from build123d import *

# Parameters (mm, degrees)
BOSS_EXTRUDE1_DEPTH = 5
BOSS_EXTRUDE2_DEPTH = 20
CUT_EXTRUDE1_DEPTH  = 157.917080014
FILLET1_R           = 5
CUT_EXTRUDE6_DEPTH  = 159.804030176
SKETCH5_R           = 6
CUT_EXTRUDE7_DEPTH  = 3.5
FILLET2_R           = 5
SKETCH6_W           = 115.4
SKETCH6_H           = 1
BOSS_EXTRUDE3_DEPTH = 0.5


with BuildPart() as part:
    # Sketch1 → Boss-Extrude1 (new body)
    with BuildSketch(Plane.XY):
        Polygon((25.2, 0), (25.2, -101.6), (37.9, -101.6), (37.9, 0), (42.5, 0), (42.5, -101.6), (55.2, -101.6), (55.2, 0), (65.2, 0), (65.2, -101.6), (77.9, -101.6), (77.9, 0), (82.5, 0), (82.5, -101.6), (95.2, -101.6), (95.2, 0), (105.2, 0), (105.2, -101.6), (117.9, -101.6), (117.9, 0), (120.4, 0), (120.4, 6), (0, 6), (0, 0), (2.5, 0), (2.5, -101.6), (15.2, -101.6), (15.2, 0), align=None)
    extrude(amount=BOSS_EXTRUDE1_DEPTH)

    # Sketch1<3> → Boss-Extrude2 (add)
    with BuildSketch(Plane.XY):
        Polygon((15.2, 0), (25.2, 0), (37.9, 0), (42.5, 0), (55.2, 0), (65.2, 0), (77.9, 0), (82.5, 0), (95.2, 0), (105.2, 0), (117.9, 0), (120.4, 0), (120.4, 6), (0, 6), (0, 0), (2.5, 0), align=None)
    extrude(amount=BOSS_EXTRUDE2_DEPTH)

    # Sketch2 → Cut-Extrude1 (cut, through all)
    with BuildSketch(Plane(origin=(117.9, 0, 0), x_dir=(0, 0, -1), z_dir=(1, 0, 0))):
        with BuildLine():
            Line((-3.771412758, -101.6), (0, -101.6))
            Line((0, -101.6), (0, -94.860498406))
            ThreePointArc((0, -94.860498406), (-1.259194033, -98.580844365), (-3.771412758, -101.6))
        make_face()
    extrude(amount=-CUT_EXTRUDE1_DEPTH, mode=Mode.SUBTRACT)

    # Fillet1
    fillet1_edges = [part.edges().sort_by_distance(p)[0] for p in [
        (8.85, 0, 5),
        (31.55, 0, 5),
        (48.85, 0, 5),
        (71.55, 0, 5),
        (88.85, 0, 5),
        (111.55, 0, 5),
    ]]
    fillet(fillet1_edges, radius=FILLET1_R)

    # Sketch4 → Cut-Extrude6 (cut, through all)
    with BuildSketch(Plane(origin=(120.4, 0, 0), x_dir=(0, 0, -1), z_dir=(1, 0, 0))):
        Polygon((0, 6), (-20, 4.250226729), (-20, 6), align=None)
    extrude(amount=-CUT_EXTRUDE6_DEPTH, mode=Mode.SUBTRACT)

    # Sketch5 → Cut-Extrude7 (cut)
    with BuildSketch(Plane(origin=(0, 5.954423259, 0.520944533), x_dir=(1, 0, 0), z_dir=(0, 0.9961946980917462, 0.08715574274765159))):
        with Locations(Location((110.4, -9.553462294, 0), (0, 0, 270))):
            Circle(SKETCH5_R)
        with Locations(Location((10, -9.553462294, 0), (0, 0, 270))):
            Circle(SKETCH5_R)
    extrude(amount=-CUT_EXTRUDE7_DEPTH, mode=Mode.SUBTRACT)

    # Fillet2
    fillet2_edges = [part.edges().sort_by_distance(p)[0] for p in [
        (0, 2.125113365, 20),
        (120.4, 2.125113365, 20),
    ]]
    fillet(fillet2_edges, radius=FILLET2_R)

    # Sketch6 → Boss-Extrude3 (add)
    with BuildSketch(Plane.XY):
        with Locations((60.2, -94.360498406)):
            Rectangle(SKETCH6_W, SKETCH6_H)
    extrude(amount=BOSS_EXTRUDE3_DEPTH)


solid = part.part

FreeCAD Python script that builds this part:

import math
import FreeCAD as App
import Part
import Sketcher

V = App.Vector
Q = App.Units.Quantity


def edges_at(feature, points):
    """Names of the edges that pass closest to the given points."""
    edges = feature.Shape.Edges
    near = lambda p: min(range(len(edges)), key=lambda i: edges[i].distToShape(Part.Vertex(*p))[0])
    return sorted({f"Edge{near(p) + 1}" for p in points})

doc = App.newDocument("Part")
body = doc.addObject("PartDesign::Body", "Body")

sketch1 = body.newObject("Sketcher::SketchObject", "Sketch")
sketch1.AttachmentSupport = (doc.getObject("XY_Plane"), [""])
sketch1.MapMode = "FlatFace"
sketch1.addGeometry([
    Part.LineSegment(V(25.2, 0, 0), V(25.2, -101.6, 0)),
    Part.LineSegment(V(25.2, -101.6, 0), V(37.9, -101.6, 0)),
    Part.LineSegment(V(37.9, -101.6, 0), V(37.9, 0, 0)),
    Part.LineSegment(V(37.9, 0, 0), V(42.5, 0, 0)),
    Part.LineSegment(V(42.5, 0, 0), V(42.5, -101.6, 0)),
    Part.LineSegment(V(42.5, -101.6, 0), V(55.2, -101.6, 0)),
    Part.LineSegment(V(55.2, -101.6, 0), V(55.2, 0, 0)),
    Part.LineSegment(V(55.2, 0, 0), V(65.2, 0, 0)),
    Part.LineSegment(V(65.2, 0, 0), V(65.2, -101.6, 0)),
    Part.LineSegment(V(65.2, -101.6, 0), V(77.9, -101.6, 0)),
    Part.LineSegment(V(77.9, -101.6, 0), V(77.9, 0, 0)),
    Part.LineSegment(V(77.9, 0, 0), V(82.5, 0, 0)),
    Part.LineSegment(V(82.5, 0, 0), V(82.5, -101.6, 0)),
    Part.LineSegment(V(82.5, -101.6, 0), V(95.2, -101.6, 0)),
    Part.LineSegment(V(95.2, -101.6, 0), V(95.2, 0, 0)),
    Part.LineSegment(V(95.2, 0, 0), V(105.2, 0, 0)),
    Part.LineSegment(V(105.2, 0, 0), V(105.2, -101.6, 0)),
    Part.LineSegment(V(105.2, -101.6, 0), V(117.9, -101.6, 0)),
    Part.LineSegment(V(117.9, -101.6, 0), V(117.9, 0, 0)),
    Part.LineSegment(V(117.9, 0, 0), V(120.4, 0, 0)),
    Part.LineSegment(V(120.4, 0, 0), V(120.4, 6, 0)),
    Part.LineSegment(V(120.4, 6, 0), V(0, 6, 0)),
    Part.LineSegment(V(0, 6, 0), V(0, 0, 0)),
    Part.LineSegment(V(0, 0, 0), V(2.5, 0, 0)),
    Part.LineSegment(V(2.5, 0, 0), V(2.5, -101.6, 0)),
    Part.LineSegment(V(2.5, -101.6, 0), V(15.2, -101.6, 0)),
    Part.LineSegment(V(15.2, -101.6, 0), V(15.2, 0, 0)),
    Part.LineSegment(V(15.2, 0, 0), V(25.2, 0, 0)),
], False)
sketch1.addConstraint([
    Sketcher.Constraint("Coincident", 0, 2, 1, 1),
    Sketcher.Constraint("Coincident", 1, 2, 2, 1),
    Sketcher.Constraint("Coincident", 2, 2, 3, 1),
    Sketcher.Constraint("Coincident", 3, 2, 4, 1),
    Sketcher.Constraint("Coincident", 4, 2, 5, 1),
    Sketcher.Constraint("Coincident", 5, 2, 6, 1),
    Sketcher.Constraint("Coincident", 6, 2, 7, 1),
    Sketcher.Constraint("Coincident", 7, 2, 8, 1),
    Sketcher.Constraint("Coincident", 8, 2, 9, 1),
    Sketcher.Constraint("Coincident", 9, 2, 10, 1),
    Sketcher.Constraint("Coincident", 10, 2, 11, 1),
    Sketcher.Constraint("Coincident", 11, 2, 12, 1),
    Sketcher.Constraint("Coincident", 12, 2, 13, 1),
    Sketcher.Constraint("Coincident", 13, 2, 14, 1),
    Sketcher.Constraint("Coincident", 14, 2, 15, 1),
    Sketcher.Constraint("Coincident", 15, 2, 16, 1),
    Sketcher.Constraint("Coincident", 16, 2, 17, 1),
    Sketcher.Constraint("Coincident", 17, 2, 18, 1),
    Sketcher.Constraint("Coincident", 18, 2, 19, 1),
    Sketcher.Constraint("Coincident", 19, 2, 20, 1),
    Sketcher.Constraint("Coincident", 20, 2, 21, 1),
    Sketcher.Constraint("Coincident", 21, 2, 22, 1),
    Sketcher.Constraint("Coincident", 22, 2, 23, 1),
    Sketcher.Constraint("Coincident", 23, 2, 24, 1),
    Sketcher.Constraint("Coincident", 24, 2, 25, 1),
    Sketcher.Constraint("Coincident", 25, 2, 26, 1),
    Sketcher.Constraint("Coincident", 26, 2, 27, 1),
    Sketcher.Constraint("Coincident", 27, 2, 0, 1),
    Sketcher.Constraint("Vertical", 0),
    Sketcher.Constraint("Horizontal", 1),
    Sketcher.Constraint("Vertical", 2),
    Sketcher.Constraint("Horizontal", 3),
    Sketcher.Constraint("Vertical", 4),
    Sketcher.Constraint("Horizontal", 5),
    Sketcher.Constraint("Vertical", 6),
    Sketcher.Constraint("Horizontal", 7),
    Sketcher.Constraint("Vertical", 8),
    Sketcher.Constraint("Horizontal", 9),
    Sketcher.Constraint("Vertical", 10),
    Sketcher.Constraint("Horizontal", 11),
    Sketcher.Constraint("Vertical", 12),
    Sketcher.Constraint("Horizontal", 13),
    Sketcher.Constraint("Vertical", 14),
    Sketcher.Constraint("Horizontal", 15),
    Sketcher.Constraint("Vertical", 16),
    Sketcher.Constraint("Horizontal", 17),
    Sketcher.Constraint("Vertical", 18),
    Sketcher.Constraint("Horizontal", 19),
    Sketcher.Constraint("Vertical", 20),
    Sketcher.Constraint("Horizontal", 21),
    Sketcher.Constraint("Vertical", 22),
    Sketcher.Constraint("Horizontal", 23),
    Sketcher.Constraint("Vertical", 24),
    Sketcher.Constraint("Horizontal", 25),
    Sketcher.Constraint("Vertical", 26),
    Sketcher.Constraint("Horizontal", 27),
    Sketcher.Constraint("Coincident", 22, 2, -1, 1),
    Sketcher.Constraint("PointOnObject", 2, 2, -1),
    Sketcher.Constraint("PointOnObject", 6, 2, -1),
    Sketcher.Constraint("PointOnObject", 10, 2, -1),
    Sketcher.Constraint("PointOnObject", 14, 2, -1),
    Sketcher.Constraint("PointOnObject", 18, 2, -1),
    Sketcher.Constraint("PointOnObject", 26, 2, -1),
    Sketcher.Constraint("Horizontal", 1, 2, 4, 2),
    Sketcher.Constraint("Horizontal", 5, 2, 8, 2),
    Sketcher.Constraint("Horizontal", 9, 2, 12, 2),
    Sketcher.Constraint("Horizontal", 13, 2, 16, 2),
    Sketcher.Constraint("Horizontal", 17, 2, 24, 2),
    Sketcher.Constraint("Equal", 1, 5),
    Sketcher.Constraint("Equal", 5, 9),
    Sketcher.Constraint("Equal", 3, 11),
    Sketcher.Constraint("Equal", 9, 13),
    Sketcher.Constraint("Equal", 7, 15),
    Sketcher.Constraint("Equal", 13, 17),
    Sketcher.Constraint("Equal", 19, 23),
    Sketcher.Constraint("Equal", 17, 25),
    Sketcher.Constraint("Equal", 15, 27),
    Sketcher.Constraint("DistanceX", 7, 1, 7, 2, Q("10 mm")),
    Sketcher.Constraint("DistanceY", 20, 1, 20, 2, Q("6 mm")),
    Sketcher.Constraint("DistanceX", 1, 1, 1, 2, Q("12.7 mm")),
    Sketcher.Constraint("DistanceX", 3, 1, 3, 2, Q("4.6 mm")),
    Sketcher.Constraint("DistanceX", 19, 1, 19, 2, Q("2.5 mm")),
    Sketcher.Constraint("DistanceY", 0, 2, 0, 1, Q("101.6 mm")),
])
pad1 = body.newObject("PartDesign::Pad", "Pad")
pad1.Profile = sketch1
pad1.Length = 5

sketch2 = body.newObject("Sketcher::SketchObject", "Sketch001")
sketch2.AttachmentSupport = (doc.getObject("XY_Plane"), [""])
sketch2.MapMode = "FlatFace"
sketch2.addGeometry([
    Part.LineSegment(V(120.4, 0, 0), V(120.4, 6, 0)),
    Part.LineSegment(V(120.4, 6, 0), V(0, 6, 0)),
    Part.LineSegment(V(0, 6, 0), V(0, 0, 0)),
    Part.LineSegment(V(0, 0, 0), V(120.4, 0, 0)),
], False)
sketch2.addConstraint([
    Sketcher.Constraint("Coincident", 0, 2, 1, 1),
    Sketcher.Constraint("Coincident", 1, 2, 2, 1),
    Sketcher.Constraint("Coincident", 2, 2, 3, 1),
    Sketcher.Constraint("Coincident", 3, 2, 0, 1),
    Sketcher.Constraint("Vertical", 0),
    Sketcher.Constraint("Horizontal", 1),
    Sketcher.Constraint("Vertical", 2),
    Sketcher.Constraint("Horizontal", 3),
    Sketcher.Constraint("Coincident", 2, 2, -1, 1),
    Sketcher.Constraint("DistanceY", 0, 1, 0, 2, Q("6 mm")),
    Sketcher.Constraint("DistanceX", 1, 2, 1, 1, Q("120.4 mm")),
])
pad2 = body.newObject("PartDesign::Pad", "Pad001")
pad2.Profile = sketch2
pad2.Length = 20

sketch3 = body.newObject("Sketcher::SketchObject", "Sketch002")
sketch3.AttachmentSupport = (doc.getObject("YZ_Plane"), [""])
sketch3.MapMode = "FlatFace"
sketch3.AttachmentOffset = App.Placement(V(0, 0, 117.9), App.Rotation())
sketch3.addGeometry([
    Part.LineSegment(V(-101.6, 3.771413, 0), V(-101.6, 0, 0)),
    Part.LineSegment(V(-101.6, 0, 0), V(-94.860498, 0, 0)),
    Part.ArcOfCircle(Part.Circle(V(-93.334329, 10.634698, 0), V(0, 0, 1), 10.743649), math.radians(-140.295924), math.radians(-98.166669)),
], False)
sketch3.addConstraint([
    Sketcher.Constraint("Coincident", 0, 2, 1, 1),
    Sketcher.Constraint("Coincident", 1, 2, 2, 2),
    Sketcher.Constraint("Coincident", 2, 1, 0, 1),
    Sketcher.Constraint("Vertical", 0),
    Sketcher.Constraint("Horizontal", 1),
    Sketcher.Constraint("PointOnObject", 0, 2, -1),
    Sketcher.Constraint("DistanceX", 0, 2, -1, 1, Q("101.6 mm")),
    Sketcher.Constraint("Radius", 2, Q("10.743649 mm")),
    Sketcher.Constraint("DistanceX", 1, 1, 1, 2, Q("6.739502 mm")),
    Sketcher.Constraint("DistanceY", -1, 1, 2, 3, Q("10.634698 mm")),
])
pocket1 = body.newObject("PartDesign::Pocket", "Pocket")
pocket1.Profile = sketch3
pocket1.Type = "ThroughAll"
doc.recompute()

fillet = body.newObject("PartDesign::Fillet", "Fillet")
fillet.Base = (pocket1, edges_at(pocket1, [
    (8.85, 0, 5),
    (31.55, 0, 5),
    (48.85, 0, 5),
    (71.55, 0, 5),
    (88.85, 0, 5),
    (111.55, 0, 5),
]))
fillet.Radius = 5

sketch4 = body.newObject("Sketcher::SketchObject", "Sketch003")
sketch4.AttachmentSupport = (doc.getObject("YZ_Plane"), [""])
sketch4.MapMode = "FlatFace"
sketch4.AttachmentOffset = App.Placement(V(0, 0, 120.4), App.Rotation())
sketch4.addGeometry([
    Part.LineSegment(V(4.250227, 20, 0), V(6, 0, 0)),
    Part.LineSegment(V(6, 0, 0), V(6, 20, 0)),
    Part.LineSegment(V(6, 20, 0), V(4.250227, 20, 0)),
], False)
sketch4.addConstraint([
    Sketcher.Constraint("Coincident", 0, 2, 1, 1),
    Sketcher.Constraint("Coincident", 1, 2, 2, 1),
    Sketcher.Constraint("Coincident", 2, 2, 0, 1),
    Sketcher.Constraint("Vertical", 1),
    Sketcher.Constraint("Horizontal", 2),
    Sketcher.Constraint("PointOnObject", 0, 2, -1),
    Sketcher.Constraint("DistanceY", 1, 1, 1, 2, Q("20 mm")),
    Sketcher.Constraint("Angle", 0, Q("-85 deg")),
    Sketcher.Constraint("DistanceX", -1, 1, 0, 2, Q("6 mm")),
])
pocket2 = body.newObject("PartDesign::Pocket", "Pocket001")
pocket2.Profile = sketch4
pocket2.Type = "ThroughAll"

sketch5 = body.newObject("Sketcher::SketchObject", "Sketch004")
sketch5.Placement = App.Placement(V(0, 5.954423, 0.520945), App.Rotation(V(1, 0, 0), V(0, 0.087155743, -0.996194698), V(0, 0.996194698, 0.087155743), "ZXY"))
sketch5.addGeometry([
    Part.Circle(V(110.4, -9.553462, 0), V(0, 0, 1), 6),
    Part.Circle(V(10, -9.553462, 0), V(0, 0, 1), 6),
], False)
sketch5.addConstraint([
    Sketcher.Constraint("Equal", 0, 1),
    Sketcher.Constraint("Horizontal", 0, 3, 1, 3),
    Sketcher.Constraint("Diameter", 0, Q("12 mm")),
    Sketcher.Constraint("DistanceX", -1, 1, 1, 3, Q("10 mm")),
    Sketcher.Constraint("DistanceX", -1, 1, 0, 3, Q("110.4 mm")),
    Sketcher.Constraint("DistanceY", 0, 3, -1, 1, Q("9.553462 mm")),
])
pocket3 = body.newObject("PartDesign::Pocket", "Pocket002")
pocket3.Profile = sketch5
pocket3.Length = 3.5
doc.recompute()

fillet2 = body.newObject("PartDesign::Fillet", "Fillet001")
fillet2.Base = (pocket3, edges_at(pocket3, [(0, 2.125, 20), (120.4, 2.125, 20)]))
fillet2.Radius = 5

sketch6 = body.newObject("Sketcher::SketchObject", "Sketch005")
sketch6.AttachmentSupport = (doc.getObject("XY_Plane"), [""])
sketch6.MapMode = "FlatFace"
sketch6.addGeometry([
    Part.LineSegment(V(2.5, -93.860498, 0), V(2.5, -94.860498, 0)),
    Part.LineSegment(V(2.5, -94.860498, 0), V(117.9, -94.860498, 0)),
    Part.LineSegment(V(117.9, -94.860498, 0), V(117.9, -93.860498, 0)),
    Part.LineSegment(V(117.9, -93.860498, 0), V(2.5, -93.860498, 0)),
], False)
sketch6.addConstraint([
    Sketcher.Constraint("Coincident", 0, 2, 1, 1),
    Sketcher.Constraint("Coincident", 1, 2, 2, 1),
    Sketcher.Constraint("Coincident", 2, 2, 3, 1),
    Sketcher.Constraint("Coincident", 3, 2, 0, 1),
    Sketcher.Constraint("Vertical", 0),
    Sketcher.Constraint("Horizontal", 1),
    Sketcher.Constraint("Vertical", 2),
    Sketcher.Constraint("Horizontal", 3),
    Sketcher.Constraint("DistanceY", 0, 2, 0, 1, Q("1 mm")),
    Sketcher.Constraint("DistanceX", 1, 1, 1, 2, Q("115.4 mm")),
    Sketcher.Constraint("DistanceX", -1, 1, 0, 2, Q("2.5 mm")),
    Sketcher.Constraint("DistanceY", 0, 2, -1, 1, Q("94.860498 mm")),
])
pad3 = body.newObject("PartDesign::Pad", "Pad002")
pad3.Profile = sketch6
pad3.Length = 0.5

doc.recompute()
